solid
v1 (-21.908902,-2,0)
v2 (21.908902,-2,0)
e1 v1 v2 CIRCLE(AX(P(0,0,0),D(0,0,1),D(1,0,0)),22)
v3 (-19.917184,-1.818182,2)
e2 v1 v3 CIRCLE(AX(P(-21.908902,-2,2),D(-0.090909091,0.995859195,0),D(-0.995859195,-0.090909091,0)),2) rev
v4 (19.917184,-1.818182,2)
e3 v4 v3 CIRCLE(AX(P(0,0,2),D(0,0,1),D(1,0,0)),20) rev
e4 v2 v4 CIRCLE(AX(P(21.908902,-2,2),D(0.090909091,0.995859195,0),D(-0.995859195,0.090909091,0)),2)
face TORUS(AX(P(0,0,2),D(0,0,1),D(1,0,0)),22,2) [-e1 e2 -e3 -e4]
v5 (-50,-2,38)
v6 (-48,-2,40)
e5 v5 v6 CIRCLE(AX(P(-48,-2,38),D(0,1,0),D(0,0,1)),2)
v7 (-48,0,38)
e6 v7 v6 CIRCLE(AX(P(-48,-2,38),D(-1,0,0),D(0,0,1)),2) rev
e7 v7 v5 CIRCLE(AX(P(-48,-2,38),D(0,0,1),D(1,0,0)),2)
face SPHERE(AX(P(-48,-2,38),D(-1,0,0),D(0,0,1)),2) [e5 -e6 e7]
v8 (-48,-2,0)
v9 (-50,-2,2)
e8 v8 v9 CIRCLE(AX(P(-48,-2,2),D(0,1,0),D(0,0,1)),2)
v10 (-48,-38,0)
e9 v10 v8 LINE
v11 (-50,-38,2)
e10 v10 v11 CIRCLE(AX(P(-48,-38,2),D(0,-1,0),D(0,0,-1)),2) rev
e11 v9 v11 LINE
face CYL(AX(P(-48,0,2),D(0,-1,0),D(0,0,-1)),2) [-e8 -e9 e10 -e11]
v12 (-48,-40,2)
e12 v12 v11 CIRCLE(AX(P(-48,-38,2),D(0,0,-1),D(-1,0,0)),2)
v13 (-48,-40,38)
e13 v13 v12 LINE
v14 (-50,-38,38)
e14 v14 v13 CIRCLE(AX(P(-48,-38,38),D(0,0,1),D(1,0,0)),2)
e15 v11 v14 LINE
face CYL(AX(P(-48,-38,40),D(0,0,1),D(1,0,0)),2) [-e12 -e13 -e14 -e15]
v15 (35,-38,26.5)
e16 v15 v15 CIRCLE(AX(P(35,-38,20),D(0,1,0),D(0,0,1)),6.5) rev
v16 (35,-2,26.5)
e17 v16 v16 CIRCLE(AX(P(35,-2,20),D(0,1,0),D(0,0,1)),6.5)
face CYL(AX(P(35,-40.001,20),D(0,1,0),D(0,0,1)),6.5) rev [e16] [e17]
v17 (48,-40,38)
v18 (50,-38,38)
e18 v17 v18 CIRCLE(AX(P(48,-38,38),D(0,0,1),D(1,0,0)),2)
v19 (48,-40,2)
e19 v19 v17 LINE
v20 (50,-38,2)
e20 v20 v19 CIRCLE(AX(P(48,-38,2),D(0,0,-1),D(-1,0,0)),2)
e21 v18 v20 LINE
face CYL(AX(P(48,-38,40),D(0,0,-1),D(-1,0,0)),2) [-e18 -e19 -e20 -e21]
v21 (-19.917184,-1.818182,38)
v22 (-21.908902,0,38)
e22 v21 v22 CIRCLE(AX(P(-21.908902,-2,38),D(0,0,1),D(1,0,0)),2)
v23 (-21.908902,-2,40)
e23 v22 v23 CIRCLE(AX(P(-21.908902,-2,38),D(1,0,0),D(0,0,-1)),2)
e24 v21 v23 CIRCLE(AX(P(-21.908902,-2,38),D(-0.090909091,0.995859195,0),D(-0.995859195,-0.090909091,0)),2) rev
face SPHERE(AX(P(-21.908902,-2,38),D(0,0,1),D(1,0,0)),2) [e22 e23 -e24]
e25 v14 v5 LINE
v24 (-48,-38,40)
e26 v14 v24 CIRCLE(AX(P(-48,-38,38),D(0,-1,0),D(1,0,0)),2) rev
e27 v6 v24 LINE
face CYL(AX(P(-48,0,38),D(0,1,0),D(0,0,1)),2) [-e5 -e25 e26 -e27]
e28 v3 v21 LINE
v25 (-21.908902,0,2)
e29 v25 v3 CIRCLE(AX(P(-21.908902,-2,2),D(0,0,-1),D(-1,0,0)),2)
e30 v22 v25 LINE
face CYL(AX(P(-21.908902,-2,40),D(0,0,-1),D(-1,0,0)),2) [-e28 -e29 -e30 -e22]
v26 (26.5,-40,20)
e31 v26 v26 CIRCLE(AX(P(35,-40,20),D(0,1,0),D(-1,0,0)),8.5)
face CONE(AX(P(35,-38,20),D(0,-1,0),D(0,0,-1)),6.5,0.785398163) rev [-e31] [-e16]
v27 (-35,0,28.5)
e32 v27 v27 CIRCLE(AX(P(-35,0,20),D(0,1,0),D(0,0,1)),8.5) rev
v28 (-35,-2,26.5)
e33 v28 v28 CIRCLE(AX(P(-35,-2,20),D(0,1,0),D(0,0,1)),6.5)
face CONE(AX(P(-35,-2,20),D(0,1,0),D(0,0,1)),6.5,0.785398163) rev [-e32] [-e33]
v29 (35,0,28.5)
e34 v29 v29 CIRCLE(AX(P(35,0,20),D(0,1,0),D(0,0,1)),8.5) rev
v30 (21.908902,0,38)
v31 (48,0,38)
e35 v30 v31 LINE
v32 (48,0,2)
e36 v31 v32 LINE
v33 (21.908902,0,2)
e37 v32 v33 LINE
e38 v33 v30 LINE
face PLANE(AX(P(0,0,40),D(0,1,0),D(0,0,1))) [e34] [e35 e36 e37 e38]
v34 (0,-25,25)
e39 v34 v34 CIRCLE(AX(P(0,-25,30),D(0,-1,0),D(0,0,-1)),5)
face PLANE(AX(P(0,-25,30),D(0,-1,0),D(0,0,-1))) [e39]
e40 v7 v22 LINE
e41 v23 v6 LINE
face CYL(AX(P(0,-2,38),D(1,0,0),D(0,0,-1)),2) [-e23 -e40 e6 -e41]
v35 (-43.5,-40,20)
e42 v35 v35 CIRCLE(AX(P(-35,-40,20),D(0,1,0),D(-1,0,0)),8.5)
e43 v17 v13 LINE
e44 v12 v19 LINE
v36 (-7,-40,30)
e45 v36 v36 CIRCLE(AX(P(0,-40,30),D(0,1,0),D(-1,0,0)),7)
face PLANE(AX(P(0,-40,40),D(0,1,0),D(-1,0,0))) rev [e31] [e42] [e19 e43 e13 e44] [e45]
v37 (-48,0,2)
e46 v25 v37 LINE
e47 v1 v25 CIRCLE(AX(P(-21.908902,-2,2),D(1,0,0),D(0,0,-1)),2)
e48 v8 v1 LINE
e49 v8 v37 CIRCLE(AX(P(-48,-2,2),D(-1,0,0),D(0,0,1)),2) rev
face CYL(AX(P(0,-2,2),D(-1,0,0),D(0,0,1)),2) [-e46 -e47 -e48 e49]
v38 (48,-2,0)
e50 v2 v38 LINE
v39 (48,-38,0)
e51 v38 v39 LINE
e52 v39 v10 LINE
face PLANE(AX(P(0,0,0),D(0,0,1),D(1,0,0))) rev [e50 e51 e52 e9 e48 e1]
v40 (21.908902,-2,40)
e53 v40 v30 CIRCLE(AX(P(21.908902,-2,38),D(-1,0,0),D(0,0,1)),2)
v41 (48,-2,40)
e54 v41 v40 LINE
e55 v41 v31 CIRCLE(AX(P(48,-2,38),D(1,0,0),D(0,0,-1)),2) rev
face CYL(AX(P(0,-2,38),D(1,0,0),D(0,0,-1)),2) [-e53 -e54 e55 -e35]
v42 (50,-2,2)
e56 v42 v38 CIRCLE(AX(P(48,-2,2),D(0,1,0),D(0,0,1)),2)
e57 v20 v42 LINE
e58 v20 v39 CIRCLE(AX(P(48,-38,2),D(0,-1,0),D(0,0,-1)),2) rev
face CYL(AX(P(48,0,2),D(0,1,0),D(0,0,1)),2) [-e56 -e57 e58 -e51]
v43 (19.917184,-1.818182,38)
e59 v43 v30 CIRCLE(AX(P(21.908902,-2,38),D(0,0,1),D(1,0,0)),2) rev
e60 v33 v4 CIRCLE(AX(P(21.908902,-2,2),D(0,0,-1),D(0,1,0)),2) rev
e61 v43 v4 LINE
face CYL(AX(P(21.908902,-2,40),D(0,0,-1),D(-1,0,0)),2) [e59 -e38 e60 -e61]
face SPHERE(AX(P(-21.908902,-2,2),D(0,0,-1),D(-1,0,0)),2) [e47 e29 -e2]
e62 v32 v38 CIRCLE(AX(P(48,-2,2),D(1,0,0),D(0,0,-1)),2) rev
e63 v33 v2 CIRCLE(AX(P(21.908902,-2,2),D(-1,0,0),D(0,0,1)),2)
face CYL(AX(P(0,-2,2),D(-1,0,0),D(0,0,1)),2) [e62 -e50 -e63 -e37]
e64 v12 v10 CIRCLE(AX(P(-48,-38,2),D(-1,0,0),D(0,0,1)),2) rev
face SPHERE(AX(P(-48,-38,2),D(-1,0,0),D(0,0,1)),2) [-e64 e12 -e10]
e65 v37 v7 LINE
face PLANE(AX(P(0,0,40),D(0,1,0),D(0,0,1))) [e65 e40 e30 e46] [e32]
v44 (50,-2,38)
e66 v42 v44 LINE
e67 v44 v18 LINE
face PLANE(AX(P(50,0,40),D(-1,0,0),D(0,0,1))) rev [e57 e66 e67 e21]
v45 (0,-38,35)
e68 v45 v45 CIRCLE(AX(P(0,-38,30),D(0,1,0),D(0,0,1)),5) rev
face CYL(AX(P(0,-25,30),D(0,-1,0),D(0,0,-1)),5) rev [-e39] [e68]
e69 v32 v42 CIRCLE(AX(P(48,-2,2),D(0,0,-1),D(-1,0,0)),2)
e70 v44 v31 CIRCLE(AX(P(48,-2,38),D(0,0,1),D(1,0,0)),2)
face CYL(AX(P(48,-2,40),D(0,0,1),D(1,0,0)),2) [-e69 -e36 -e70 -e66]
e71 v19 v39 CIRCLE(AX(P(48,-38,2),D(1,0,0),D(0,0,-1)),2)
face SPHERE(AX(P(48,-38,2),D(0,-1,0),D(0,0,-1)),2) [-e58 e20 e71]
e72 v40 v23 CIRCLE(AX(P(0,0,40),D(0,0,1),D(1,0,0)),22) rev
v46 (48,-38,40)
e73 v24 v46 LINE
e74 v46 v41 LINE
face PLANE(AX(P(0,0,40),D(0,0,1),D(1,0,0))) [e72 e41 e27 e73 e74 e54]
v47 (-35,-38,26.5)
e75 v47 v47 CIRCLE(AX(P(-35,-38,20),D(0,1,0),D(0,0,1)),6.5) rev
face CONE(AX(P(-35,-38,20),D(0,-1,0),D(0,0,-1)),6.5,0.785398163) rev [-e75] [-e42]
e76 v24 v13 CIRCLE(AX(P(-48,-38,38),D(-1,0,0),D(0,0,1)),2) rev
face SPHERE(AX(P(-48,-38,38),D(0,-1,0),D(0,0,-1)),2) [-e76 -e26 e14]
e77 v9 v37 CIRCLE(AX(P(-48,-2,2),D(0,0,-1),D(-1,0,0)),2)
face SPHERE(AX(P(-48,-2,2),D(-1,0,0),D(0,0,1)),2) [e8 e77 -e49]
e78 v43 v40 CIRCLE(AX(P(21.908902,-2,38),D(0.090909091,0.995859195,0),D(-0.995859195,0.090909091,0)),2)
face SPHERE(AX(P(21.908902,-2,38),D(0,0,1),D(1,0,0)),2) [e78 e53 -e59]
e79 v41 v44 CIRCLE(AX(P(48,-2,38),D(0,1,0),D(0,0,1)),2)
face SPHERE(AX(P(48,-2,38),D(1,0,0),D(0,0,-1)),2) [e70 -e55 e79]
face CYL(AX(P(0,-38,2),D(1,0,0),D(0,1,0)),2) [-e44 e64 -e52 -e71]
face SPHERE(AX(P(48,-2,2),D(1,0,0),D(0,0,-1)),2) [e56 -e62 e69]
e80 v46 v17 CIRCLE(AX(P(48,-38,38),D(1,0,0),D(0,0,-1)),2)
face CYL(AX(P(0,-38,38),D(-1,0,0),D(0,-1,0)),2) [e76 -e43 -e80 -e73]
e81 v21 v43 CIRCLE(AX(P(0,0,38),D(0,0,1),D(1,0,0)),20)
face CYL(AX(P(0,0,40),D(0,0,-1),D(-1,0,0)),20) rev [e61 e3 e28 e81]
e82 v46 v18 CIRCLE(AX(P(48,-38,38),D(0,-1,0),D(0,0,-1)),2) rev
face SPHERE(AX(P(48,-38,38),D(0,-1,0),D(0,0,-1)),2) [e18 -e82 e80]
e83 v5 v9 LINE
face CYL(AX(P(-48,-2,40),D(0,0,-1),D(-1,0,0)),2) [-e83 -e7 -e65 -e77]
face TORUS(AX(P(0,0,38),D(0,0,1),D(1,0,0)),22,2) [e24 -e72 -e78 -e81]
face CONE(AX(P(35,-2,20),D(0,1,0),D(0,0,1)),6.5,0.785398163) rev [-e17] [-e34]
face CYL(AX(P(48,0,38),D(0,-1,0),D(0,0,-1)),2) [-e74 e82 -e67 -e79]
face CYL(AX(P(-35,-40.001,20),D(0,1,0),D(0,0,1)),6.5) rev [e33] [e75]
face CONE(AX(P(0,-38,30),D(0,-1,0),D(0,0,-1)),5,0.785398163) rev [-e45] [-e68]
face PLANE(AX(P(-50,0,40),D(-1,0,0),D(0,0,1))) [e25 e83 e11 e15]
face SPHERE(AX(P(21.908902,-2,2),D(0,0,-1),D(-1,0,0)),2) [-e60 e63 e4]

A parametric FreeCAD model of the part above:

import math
import FreeCAD as App
import Part
import Sketcher
from FreeCAD import Vector
Q = App.Units.Quantity


def edges_at(feature, points):
    """Names of the edges that pass closest to the given points."""
    edges = feature.Shape.Edges
    near = lambda p: min(range(len(edges)), key=lambda i: edges[i].distToShape(Part.Vertex(*p))[0])
    return sorted({f"Edge{near(p) + 1}" for p in points})

doc = App.newDocument("Part")
body = doc.addObject("PartDesign::Body", "Body")

# Sketch on XY plane
sketch1 = doc.addObject("Sketcher::SketchObject", "Sketch")
body.addObject(sketch1)
sketch1.AttachmentSupport = (doc.XY_Plane, [""])
sketch1.MapMode = "FlatFace"
sketch1.addGeometry([
    Part.LineSegment(Vector(50, 0, 0), Vector(20, 0, 0)),  # 0
    Part.ArcOfCircle(Part.Circle(Vector(0, 0, 0), Vector(0, 0, 1), 20), math.radians(180), math.radians(360)),  # 1
    Part.LineSegment(Vector(-20, 0, 0), Vector(-50, 0, 0)),  # 2
    Part.LineSegment(Vector(-50, 0, 0), Vector(-50, -40, 0)),  # 3
    Part.LineSegment(Vector(-50, -40, 0), Vector(50, -40, 0)),  # 4
    Part.LineSegment(Vector(50, -40, 0), Vector(50, 0, 0)),  # 5
], False)
sketch1.addConstraint([
    Sketcher.Constraint("Coincident", 0, 2, 1, 2),
    Sketcher.Constraint("Coincident", 1, 1, 2, 1),
    Sketcher.Constraint("Coincident", 2, 2, 3, 1),
    Sketcher.Constraint("Coincident", 3, 2, 4, 1),
    Sketcher.Constraint("Coincident", 4, 2, 5, 1),
    Sketcher.Constraint("Coincident", 5, 2, 0, 1),
    Sketcher.Constraint("Horizontal", 0),
    Sketcher.Constraint("Horizontal", 2),
    Sketcher.Constraint("Vertical", 3),
    Sketcher.Constraint("Horizontal", 4),
    Sketcher.Constraint("Vertical", 5),
    Sketcher.Constraint("Coincident", 1, 3, -1, 1),
    Sketcher.Constraint("Symmetric", 2, 2, 5, 2, -1, 1),
    Sketcher.Constraint("PointOnObject", 0, 2, -1),
    Sketcher.Constraint("Radius", 1, Q("20 mm")),
    Sketcher.Constraint("DistanceX", 0, 2, 0, 1, Q("30 mm")),
    Sketcher.Constraint("DistanceY", 3, 2, 3, 1, Q("40 mm")),
])
pad1 = doc.addObject("PartDesign::Pad", "Pad")
body.addObject(pad1)
pad1.Profile = sketch1
pad1.Length = 40

# Sketch on XZ plane
sketch2 = doc.addObject("Sketcher::SketchObject", "Sketch001")
body.addObject(sketch2)
sketch2.AttachmentSupport = (doc.XZ_Plane, [""])
sketch2.MapMode = "FlatFace"
sketch2.addGeometry(Part.Circle(Vector(-35, 20, 0), Vector(0, 0, 1), 6.5), False)
sketch2.addConstraint([
    Sketcher.Constraint("Diameter", 0, Q("13 mm")),
    Sketcher.Constraint("DistanceX", 0, 3, -1, 1, Q("35 mm")),
    Sketcher.Constraint("DistanceY", -1, 1, 0, 3, Q("20 mm")),
])
pocket1 = doc.addObject("PartDesign::Pocket", "Pocket")
body.addObject(pocket1)
pocket1.Profile = sketch2
pocket1.Type = "UpToFirst"
pocket1.Reversed = True

# Sketch on XZ plane
sketch3 = doc.addObject("Sketcher::SketchObject", "Sketch002")
body.addObject(sketch3)
sketch3.AttachmentSupport = (doc.XZ_Plane, [""])
sketch3.MapMode = "FlatFace"
sketch3.addGeometry(Part.Circle(Vector(35, 20, 0), Vector(0, 0, 1), 6.5), False)
sketch3.addConstraint([
    Sketcher.Constraint("Diameter", 0, Q("13 mm")),
    Sketcher.Constraint("DistanceX", -1, 1, 0, 3, Q("35 mm")),
    Sketcher.Constraint("DistanceY", -1, 1, 0, 3, Q("20 mm")),
])
pocket2 = doc.addObject("PartDesign::Pocket", "Pocket001")
body.addObject(pocket2)
pocket2.Profile = sketch3
pocket2.Type = "UpToFirst"
pocket2.Reversed = True

# Sketch on XZ plane
sketch4 = doc.addObject("Sketcher::SketchObject", "Sketch003")
body.addObject(sketch4)
sketch4.AttachmentSupport = (doc.XZ_Plane, [""])
sketch4.MapMode = "FlatFace"
sketch4.AttachmentOffset = App.Placement(Vector(0, 0, 40), App.Rotation())
sketch4.addGeometry(Part.Circle(Vector(0, 30, 0), Vector(0, 0, 1), 5), False)
sketch4.addConstraint([
    Sketcher.Constraint("PointOnObject", 0, 3, -2),
    Sketcher.Constraint("Diameter", 0, Q("10 mm")),
    Sketcher.Constraint("DistanceY", -1, 1, 0, 3, Q("30 mm")),
])
pocket3 = doc.addObject("PartDesign::Pocket", "Pocket002")
body.addObject(pocket3)
pocket3.Profile = sketch4
pocket3.Length = 15
doc.recompute()

chamfer = doc.addObject("PartDesign::Chamfer", "Chamfer")
body.addObject(chamfer)
chamfer.Base = (pocket3, edges_at(pocket3, [
    (-35, 0, 13.5),
    (-35, -40, 13.5),
    (35, 0, 13.5),
    (35, -40, 13.5),
    (0, -40, 35),
]))
chamfer.Size = 2
doc.recompute()

fillet = doc.addObject("PartDesign::Fillet", "Fillet")
body.addObject(fillet)
fillet.Base = (chamfer, edges_at(chamfer, [
    (0, -20, 0),
    (-35, 0, 40),
    (20, 0, 20),
    (50, 0, 20),
    (50, -40, 20),
    (-50, -40, 20),
    (-50, 0, 20),
    (-20, 0, 20),
    (-50, -20, 40),
    (0, -40, 40),
    (50, -20, 40),
    (35, 0, 40),
    (0, -20, 40),
    (35, 0, 0),
    (50, -20, 0),
    (0, -40, 0),
    (-50, -20, 0),
    (-35, 0, 0),
]))
fillet.Radius = 2

doc.recompute()
